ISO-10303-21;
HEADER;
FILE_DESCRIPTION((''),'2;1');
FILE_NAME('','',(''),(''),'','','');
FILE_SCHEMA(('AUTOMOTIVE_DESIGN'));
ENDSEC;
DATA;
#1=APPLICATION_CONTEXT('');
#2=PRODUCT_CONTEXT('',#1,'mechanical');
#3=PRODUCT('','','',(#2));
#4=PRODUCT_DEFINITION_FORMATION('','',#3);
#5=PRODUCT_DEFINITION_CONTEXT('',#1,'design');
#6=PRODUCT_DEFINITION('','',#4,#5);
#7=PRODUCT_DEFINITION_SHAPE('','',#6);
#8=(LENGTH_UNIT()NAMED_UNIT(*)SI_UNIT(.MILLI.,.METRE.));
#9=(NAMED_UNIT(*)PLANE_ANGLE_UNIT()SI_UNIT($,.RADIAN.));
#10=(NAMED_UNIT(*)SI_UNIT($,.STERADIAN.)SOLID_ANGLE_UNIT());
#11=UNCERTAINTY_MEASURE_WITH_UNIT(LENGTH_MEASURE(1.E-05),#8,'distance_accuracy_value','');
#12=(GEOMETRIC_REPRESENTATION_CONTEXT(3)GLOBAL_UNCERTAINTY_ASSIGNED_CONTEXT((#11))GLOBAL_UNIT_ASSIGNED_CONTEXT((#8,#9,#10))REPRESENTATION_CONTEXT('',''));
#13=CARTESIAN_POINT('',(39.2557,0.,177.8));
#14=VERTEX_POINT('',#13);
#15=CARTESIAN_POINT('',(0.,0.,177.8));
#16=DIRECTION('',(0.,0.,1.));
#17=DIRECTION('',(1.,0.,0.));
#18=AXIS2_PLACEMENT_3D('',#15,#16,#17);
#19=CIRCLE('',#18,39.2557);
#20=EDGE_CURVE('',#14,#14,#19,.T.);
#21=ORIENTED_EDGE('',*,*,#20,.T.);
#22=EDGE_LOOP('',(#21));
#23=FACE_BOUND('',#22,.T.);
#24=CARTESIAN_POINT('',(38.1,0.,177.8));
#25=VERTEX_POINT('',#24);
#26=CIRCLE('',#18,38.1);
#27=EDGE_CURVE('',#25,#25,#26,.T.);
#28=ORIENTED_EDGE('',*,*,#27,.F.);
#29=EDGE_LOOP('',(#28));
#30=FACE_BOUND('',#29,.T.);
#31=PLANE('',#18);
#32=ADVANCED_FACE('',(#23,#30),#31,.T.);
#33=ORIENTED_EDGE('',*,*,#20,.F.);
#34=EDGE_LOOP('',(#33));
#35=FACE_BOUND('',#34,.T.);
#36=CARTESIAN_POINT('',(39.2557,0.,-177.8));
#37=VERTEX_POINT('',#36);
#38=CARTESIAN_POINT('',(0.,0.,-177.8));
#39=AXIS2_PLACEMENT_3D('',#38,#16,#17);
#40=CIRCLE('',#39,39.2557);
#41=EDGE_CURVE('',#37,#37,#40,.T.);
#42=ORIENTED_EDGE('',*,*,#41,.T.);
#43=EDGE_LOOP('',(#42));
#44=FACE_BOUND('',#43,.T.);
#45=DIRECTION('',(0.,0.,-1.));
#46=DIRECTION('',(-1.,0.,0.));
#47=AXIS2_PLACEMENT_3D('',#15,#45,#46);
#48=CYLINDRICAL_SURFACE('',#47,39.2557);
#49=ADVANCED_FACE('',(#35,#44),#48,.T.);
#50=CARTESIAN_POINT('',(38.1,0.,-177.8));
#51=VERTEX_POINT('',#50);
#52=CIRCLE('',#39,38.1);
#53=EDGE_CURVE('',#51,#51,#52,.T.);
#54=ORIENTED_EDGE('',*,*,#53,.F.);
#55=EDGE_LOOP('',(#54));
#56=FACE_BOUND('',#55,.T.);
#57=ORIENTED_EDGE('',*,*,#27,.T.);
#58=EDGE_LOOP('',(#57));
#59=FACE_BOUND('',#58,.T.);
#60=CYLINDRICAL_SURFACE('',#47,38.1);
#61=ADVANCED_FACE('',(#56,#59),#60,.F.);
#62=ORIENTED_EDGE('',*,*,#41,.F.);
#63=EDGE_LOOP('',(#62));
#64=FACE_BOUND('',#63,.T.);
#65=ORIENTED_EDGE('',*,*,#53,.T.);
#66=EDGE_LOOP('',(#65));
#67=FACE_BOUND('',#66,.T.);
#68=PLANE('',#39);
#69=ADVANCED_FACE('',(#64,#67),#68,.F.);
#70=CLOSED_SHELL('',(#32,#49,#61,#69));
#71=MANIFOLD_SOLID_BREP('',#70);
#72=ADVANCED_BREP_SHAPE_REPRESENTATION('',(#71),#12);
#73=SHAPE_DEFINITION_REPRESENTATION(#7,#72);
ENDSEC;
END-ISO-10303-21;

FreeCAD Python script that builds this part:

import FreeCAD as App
import Part
import Sketcher
from FreeCAD import Vector
Q = App.Units.Quantity

doc = App.newDocument("Part")
body = doc.addObject("PartDesign::Body", "Body")

# Sketch on XY plane
sketch1 = body.newObject("Sketcher::SketchObject", "Sketch")
sketch1.AttachmentSupport = (doc.getObject("XY_Plane"), [""])
sketch1.MapMode = "FlatFace"
sketch1.addGeometry(Part.Circle(Vector(0, 0, 0), Vector(0, 0, 1), 39), False)
sketch1.addGeometry(Part.Circle(Vector(0, 0, 0), Vector(0, 0, 1), 38), False)
sketch1.addConstraint(Sketcher.Constraint("Coincident", 0, 3, -1, 1))
sketch1.addConstraint(Sketcher.Constraint("Coincident", 1, 3, -1, 1))
sketch1.addConstraint(Sketcher.Constraint("Diameter", 1, Q("3 in")))
sketch1.addConstraint(Sketcher.Constraint("Diameter", 0, Q("3.091 in")))
pad1 = body.newObject("PartDesign::Pad", "Pad")
pad1.Profile = sketch1
pad1.Length = Q("14 in")
pad1.Midplane = True

doc.recompute()
